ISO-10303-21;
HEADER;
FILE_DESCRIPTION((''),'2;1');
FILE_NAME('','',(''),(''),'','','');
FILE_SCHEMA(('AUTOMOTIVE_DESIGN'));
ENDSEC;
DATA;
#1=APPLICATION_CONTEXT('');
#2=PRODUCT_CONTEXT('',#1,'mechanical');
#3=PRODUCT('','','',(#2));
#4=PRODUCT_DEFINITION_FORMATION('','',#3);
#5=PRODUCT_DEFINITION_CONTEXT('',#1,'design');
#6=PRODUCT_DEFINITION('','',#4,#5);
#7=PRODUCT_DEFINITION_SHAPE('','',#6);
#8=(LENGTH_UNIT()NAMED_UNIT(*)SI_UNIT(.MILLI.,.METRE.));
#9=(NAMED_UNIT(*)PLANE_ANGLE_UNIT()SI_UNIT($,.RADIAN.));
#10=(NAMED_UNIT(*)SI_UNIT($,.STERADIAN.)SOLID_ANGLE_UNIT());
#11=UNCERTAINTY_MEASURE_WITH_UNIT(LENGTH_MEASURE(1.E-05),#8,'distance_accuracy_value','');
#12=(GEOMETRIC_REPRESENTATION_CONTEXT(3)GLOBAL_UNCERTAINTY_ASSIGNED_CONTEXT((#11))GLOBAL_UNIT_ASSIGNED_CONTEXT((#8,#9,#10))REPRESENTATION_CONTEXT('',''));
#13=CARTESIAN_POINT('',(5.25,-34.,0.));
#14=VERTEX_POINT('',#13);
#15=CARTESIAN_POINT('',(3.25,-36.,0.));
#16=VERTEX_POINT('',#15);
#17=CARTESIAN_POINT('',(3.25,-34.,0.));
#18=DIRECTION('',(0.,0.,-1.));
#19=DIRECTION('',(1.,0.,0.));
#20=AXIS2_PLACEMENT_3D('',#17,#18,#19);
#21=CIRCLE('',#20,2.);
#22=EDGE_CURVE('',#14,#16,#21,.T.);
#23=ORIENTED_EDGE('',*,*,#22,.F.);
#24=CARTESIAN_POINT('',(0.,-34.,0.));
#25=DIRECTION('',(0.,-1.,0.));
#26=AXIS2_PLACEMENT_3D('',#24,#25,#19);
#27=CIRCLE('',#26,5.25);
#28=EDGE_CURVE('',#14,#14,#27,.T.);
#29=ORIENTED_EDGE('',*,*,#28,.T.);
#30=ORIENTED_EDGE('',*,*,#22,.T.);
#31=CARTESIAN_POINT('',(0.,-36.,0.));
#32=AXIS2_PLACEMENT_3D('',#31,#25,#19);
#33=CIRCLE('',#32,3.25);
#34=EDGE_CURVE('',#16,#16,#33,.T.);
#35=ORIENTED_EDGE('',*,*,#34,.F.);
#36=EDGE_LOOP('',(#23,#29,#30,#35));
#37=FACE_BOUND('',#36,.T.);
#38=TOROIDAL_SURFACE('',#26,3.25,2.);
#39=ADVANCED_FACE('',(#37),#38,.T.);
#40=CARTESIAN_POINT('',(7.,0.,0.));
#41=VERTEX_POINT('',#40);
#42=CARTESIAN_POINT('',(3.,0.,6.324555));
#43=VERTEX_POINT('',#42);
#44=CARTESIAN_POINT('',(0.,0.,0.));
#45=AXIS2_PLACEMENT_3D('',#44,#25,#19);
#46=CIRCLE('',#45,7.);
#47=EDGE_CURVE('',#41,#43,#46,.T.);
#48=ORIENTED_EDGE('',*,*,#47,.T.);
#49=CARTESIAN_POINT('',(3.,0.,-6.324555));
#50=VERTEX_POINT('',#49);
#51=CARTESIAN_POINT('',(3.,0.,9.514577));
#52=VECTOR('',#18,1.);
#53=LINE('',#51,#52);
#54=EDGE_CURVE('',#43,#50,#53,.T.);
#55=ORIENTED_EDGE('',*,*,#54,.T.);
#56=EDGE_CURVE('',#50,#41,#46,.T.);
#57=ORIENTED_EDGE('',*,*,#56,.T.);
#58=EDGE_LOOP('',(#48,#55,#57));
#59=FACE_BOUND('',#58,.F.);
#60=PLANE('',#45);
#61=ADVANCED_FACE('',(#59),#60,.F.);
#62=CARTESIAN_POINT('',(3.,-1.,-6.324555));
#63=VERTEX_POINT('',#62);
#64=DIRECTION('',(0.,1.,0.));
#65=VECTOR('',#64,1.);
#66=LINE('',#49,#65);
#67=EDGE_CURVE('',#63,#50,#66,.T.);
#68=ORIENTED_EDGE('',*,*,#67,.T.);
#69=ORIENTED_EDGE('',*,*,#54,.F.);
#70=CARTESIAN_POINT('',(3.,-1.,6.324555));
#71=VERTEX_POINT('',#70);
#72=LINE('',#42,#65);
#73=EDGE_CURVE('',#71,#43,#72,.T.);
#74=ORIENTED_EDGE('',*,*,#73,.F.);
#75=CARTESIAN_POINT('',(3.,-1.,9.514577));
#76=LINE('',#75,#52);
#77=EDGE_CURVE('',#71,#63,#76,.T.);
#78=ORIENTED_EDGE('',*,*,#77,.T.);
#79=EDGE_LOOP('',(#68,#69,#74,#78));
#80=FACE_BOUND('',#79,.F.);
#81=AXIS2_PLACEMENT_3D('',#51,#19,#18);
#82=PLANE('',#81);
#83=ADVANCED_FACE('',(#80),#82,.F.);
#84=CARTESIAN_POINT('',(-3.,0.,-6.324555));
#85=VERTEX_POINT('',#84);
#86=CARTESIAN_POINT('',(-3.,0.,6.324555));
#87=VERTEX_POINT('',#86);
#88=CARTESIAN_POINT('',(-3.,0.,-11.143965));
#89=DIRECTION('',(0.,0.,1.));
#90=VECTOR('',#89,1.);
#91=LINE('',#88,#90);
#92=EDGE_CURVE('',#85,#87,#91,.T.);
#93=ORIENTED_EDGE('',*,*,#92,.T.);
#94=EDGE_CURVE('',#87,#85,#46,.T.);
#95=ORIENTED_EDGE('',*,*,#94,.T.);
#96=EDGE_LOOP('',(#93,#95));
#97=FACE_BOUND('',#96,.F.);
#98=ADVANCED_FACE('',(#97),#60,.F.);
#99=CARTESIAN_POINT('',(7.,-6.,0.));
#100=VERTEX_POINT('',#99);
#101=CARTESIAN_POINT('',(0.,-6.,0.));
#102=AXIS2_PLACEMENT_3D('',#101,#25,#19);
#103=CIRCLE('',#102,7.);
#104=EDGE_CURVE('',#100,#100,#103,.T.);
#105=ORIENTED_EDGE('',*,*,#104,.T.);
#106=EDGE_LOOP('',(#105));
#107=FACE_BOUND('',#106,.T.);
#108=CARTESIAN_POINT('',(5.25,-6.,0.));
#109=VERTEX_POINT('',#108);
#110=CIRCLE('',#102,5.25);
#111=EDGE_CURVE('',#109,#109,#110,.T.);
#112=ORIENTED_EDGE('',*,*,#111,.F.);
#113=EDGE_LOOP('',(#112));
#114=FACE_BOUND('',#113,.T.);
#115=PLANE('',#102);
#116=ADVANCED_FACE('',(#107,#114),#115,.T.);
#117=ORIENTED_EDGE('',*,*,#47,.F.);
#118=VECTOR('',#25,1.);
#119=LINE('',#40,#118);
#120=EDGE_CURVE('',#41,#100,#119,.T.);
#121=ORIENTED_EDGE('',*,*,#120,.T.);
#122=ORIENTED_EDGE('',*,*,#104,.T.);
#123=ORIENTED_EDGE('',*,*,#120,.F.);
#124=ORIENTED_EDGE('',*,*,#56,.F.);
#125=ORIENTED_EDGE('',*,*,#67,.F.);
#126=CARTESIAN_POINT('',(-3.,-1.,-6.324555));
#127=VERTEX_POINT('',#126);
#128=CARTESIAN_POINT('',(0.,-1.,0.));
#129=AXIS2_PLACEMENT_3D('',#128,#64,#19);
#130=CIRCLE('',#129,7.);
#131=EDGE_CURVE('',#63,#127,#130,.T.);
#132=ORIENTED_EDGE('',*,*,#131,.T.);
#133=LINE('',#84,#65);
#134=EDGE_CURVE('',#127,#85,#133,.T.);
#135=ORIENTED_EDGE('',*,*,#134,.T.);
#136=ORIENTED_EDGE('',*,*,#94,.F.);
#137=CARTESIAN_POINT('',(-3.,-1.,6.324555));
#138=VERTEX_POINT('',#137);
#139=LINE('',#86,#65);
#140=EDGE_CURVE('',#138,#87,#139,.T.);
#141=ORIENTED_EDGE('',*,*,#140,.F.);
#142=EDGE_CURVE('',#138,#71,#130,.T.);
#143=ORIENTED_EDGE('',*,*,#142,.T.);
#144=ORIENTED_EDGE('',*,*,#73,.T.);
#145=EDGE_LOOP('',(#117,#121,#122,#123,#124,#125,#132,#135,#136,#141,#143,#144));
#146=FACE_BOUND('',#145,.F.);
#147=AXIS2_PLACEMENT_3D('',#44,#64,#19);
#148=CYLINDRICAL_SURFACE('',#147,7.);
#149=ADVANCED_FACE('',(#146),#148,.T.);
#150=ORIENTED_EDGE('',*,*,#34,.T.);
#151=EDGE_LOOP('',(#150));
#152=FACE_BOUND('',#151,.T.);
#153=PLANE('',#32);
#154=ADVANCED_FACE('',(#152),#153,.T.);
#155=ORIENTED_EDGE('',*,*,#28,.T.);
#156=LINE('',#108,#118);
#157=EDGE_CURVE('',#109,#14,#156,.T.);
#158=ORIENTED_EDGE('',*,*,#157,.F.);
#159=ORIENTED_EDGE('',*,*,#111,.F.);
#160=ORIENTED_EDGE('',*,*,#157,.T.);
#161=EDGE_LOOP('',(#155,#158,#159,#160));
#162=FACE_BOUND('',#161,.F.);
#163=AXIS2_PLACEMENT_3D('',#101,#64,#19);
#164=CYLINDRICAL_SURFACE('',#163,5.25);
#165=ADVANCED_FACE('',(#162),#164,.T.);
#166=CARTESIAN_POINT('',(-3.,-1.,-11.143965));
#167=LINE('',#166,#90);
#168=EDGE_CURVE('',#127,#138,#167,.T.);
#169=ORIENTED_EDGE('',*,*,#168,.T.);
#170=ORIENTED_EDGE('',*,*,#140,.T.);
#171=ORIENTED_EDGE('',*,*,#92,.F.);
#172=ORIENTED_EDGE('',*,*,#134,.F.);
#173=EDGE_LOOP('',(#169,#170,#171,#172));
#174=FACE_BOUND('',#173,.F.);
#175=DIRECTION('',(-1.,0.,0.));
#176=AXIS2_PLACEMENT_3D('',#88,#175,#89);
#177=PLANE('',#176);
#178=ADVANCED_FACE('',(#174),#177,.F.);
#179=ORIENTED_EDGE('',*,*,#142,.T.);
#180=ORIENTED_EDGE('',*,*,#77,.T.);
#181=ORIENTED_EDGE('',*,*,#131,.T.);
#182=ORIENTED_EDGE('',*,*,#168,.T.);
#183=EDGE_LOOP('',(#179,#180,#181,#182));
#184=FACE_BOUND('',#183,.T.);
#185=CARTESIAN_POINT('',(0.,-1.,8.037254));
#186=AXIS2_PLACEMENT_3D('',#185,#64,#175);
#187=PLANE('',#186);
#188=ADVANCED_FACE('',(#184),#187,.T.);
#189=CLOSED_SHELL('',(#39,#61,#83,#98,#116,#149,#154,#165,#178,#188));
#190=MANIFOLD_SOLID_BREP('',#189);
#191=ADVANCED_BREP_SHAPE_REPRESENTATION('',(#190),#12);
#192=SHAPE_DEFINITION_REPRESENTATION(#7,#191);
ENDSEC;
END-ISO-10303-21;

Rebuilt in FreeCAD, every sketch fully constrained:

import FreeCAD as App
import Part
import Sketcher

V = App.Vector


def edges_at(feature, points):
    """Names of the edges that pass closest to the given points."""
    edges = feature.Shape.Edges
    near = lambda p: min(range(len(edges)), key=lambda i: edges[i].distToShape(Part.Vertex(*p))[0])
    return sorted({f"Edge{near(p) + 1}" for p in points})


def add_polygon(sketch, points):
    """Adds a closed chain of lines whose ends are joined by coincident constraints."""
    first, n = sketch.GeometryCount, len(points)
    for a, b in zip(points, points[1:] + points[:1]):
        sketch.addGeometry(Part.LineSegment(App.Vector(*a, 0), App.Vector(*b, 0)), False)
    for i in range(n):
        sketch.addConstraint(Sketcher.Constraint("Coincident", first + i, 2, first + (i + 1) % n, 1))

doc = App.newDocument("Part")
body = doc.addObject("PartDesign::Body", "Body")

# Sketch on XZ plane
sketch1 = body.newObject("Sketcher::SketchObject", "Sketch")
sketch1.AttachmentSupport = (doc.getObject("XZ_Plane"), [""])
sketch1.MapMode = "FlatFace"
sketch1.addGeometry(Part.Circle(V(0, 0, 0), V(0, 0, 1), 7), False)
sketch1.addConstraint([
    Sketcher.Constraint("Coincident", 0, 3, -1, 1),
    Sketcher.Constraint("Diameter", 0, 14.0),
])
pad1 = body.newObject("PartDesign::Pad", "Pad")
pad1.Profile = sketch1
pad1.Length = 6

# Sketch on XZ plane
sketch2 = body.newObject("Sketcher::SketchObject", "Sketch001")
sketch2.AttachmentSupport = (doc.getObject("XZ_Plane"), [""])
sketch2.MapMode = "FlatFace"
sketch2.AttachmentOffset = App.Placement(V(0, 0, 6), App.Rotation())
sketch2.addGeometry(Part.Circle(V(0, 0, 0), V(0, 0, 1), 5), False)
sketch2.addConstraint([
    Sketcher.Constraint("Coincident", 0, 3, -1, 1),
    Sketcher.Constraint("Diameter", 0, 10.5),
])
pad2 = body.newObject("PartDesign::Pad", "Pad001")
pad2.Profile = sketch2
pad2.Length = 30

# Sketch on XZ plane
sketch3 = body.newObject("Sketcher::SketchObject", "Sketch002")
sketch3.AttachmentSupport = (doc.getObject("XZ_Plane"), [""])
sketch3.MapMode = "FlatFace"
add_polygon(sketch3, [(3, 10), (3, -11), (-3, -11), (-3, 10)])  # lines 0-3
sketch3.addConstraint([
    Sketcher.Constraint("Vertical", 0),
    Sketcher.Constraint("Horizontal", 1),
    Sketcher.Constraint("Vertical", 2),
    Sketcher.Constraint("Horizontal", 3),
    Sketcher.Constraint("DistanceX", 1, 2, 1, 1, 6.0),
    Sketcher.Constraint("DistanceX", -1, 1, 0, 2, 3.0),
    Sketcher.Constraint("DistanceY", 0, 2, 0, 1, 20.658541),
    Sketcher.Constraint("DistanceY", 0, 2, -1, 1, 11.143965),
])
pocket1 = body.newObject("PartDesign::Pocket", "Pocket")
pocket1.Profile = sketch3
pocket1.Length = 1
pocket1.Reversed = True
doc.recompute()

fillet = body.newObject("PartDesign::Fillet", "Fillet")
fillet.Base = (pocket1, edges_at(pocket1, [(-5.25, -36, 0)]))
fillet.Radius = 2

doc.recompute()
